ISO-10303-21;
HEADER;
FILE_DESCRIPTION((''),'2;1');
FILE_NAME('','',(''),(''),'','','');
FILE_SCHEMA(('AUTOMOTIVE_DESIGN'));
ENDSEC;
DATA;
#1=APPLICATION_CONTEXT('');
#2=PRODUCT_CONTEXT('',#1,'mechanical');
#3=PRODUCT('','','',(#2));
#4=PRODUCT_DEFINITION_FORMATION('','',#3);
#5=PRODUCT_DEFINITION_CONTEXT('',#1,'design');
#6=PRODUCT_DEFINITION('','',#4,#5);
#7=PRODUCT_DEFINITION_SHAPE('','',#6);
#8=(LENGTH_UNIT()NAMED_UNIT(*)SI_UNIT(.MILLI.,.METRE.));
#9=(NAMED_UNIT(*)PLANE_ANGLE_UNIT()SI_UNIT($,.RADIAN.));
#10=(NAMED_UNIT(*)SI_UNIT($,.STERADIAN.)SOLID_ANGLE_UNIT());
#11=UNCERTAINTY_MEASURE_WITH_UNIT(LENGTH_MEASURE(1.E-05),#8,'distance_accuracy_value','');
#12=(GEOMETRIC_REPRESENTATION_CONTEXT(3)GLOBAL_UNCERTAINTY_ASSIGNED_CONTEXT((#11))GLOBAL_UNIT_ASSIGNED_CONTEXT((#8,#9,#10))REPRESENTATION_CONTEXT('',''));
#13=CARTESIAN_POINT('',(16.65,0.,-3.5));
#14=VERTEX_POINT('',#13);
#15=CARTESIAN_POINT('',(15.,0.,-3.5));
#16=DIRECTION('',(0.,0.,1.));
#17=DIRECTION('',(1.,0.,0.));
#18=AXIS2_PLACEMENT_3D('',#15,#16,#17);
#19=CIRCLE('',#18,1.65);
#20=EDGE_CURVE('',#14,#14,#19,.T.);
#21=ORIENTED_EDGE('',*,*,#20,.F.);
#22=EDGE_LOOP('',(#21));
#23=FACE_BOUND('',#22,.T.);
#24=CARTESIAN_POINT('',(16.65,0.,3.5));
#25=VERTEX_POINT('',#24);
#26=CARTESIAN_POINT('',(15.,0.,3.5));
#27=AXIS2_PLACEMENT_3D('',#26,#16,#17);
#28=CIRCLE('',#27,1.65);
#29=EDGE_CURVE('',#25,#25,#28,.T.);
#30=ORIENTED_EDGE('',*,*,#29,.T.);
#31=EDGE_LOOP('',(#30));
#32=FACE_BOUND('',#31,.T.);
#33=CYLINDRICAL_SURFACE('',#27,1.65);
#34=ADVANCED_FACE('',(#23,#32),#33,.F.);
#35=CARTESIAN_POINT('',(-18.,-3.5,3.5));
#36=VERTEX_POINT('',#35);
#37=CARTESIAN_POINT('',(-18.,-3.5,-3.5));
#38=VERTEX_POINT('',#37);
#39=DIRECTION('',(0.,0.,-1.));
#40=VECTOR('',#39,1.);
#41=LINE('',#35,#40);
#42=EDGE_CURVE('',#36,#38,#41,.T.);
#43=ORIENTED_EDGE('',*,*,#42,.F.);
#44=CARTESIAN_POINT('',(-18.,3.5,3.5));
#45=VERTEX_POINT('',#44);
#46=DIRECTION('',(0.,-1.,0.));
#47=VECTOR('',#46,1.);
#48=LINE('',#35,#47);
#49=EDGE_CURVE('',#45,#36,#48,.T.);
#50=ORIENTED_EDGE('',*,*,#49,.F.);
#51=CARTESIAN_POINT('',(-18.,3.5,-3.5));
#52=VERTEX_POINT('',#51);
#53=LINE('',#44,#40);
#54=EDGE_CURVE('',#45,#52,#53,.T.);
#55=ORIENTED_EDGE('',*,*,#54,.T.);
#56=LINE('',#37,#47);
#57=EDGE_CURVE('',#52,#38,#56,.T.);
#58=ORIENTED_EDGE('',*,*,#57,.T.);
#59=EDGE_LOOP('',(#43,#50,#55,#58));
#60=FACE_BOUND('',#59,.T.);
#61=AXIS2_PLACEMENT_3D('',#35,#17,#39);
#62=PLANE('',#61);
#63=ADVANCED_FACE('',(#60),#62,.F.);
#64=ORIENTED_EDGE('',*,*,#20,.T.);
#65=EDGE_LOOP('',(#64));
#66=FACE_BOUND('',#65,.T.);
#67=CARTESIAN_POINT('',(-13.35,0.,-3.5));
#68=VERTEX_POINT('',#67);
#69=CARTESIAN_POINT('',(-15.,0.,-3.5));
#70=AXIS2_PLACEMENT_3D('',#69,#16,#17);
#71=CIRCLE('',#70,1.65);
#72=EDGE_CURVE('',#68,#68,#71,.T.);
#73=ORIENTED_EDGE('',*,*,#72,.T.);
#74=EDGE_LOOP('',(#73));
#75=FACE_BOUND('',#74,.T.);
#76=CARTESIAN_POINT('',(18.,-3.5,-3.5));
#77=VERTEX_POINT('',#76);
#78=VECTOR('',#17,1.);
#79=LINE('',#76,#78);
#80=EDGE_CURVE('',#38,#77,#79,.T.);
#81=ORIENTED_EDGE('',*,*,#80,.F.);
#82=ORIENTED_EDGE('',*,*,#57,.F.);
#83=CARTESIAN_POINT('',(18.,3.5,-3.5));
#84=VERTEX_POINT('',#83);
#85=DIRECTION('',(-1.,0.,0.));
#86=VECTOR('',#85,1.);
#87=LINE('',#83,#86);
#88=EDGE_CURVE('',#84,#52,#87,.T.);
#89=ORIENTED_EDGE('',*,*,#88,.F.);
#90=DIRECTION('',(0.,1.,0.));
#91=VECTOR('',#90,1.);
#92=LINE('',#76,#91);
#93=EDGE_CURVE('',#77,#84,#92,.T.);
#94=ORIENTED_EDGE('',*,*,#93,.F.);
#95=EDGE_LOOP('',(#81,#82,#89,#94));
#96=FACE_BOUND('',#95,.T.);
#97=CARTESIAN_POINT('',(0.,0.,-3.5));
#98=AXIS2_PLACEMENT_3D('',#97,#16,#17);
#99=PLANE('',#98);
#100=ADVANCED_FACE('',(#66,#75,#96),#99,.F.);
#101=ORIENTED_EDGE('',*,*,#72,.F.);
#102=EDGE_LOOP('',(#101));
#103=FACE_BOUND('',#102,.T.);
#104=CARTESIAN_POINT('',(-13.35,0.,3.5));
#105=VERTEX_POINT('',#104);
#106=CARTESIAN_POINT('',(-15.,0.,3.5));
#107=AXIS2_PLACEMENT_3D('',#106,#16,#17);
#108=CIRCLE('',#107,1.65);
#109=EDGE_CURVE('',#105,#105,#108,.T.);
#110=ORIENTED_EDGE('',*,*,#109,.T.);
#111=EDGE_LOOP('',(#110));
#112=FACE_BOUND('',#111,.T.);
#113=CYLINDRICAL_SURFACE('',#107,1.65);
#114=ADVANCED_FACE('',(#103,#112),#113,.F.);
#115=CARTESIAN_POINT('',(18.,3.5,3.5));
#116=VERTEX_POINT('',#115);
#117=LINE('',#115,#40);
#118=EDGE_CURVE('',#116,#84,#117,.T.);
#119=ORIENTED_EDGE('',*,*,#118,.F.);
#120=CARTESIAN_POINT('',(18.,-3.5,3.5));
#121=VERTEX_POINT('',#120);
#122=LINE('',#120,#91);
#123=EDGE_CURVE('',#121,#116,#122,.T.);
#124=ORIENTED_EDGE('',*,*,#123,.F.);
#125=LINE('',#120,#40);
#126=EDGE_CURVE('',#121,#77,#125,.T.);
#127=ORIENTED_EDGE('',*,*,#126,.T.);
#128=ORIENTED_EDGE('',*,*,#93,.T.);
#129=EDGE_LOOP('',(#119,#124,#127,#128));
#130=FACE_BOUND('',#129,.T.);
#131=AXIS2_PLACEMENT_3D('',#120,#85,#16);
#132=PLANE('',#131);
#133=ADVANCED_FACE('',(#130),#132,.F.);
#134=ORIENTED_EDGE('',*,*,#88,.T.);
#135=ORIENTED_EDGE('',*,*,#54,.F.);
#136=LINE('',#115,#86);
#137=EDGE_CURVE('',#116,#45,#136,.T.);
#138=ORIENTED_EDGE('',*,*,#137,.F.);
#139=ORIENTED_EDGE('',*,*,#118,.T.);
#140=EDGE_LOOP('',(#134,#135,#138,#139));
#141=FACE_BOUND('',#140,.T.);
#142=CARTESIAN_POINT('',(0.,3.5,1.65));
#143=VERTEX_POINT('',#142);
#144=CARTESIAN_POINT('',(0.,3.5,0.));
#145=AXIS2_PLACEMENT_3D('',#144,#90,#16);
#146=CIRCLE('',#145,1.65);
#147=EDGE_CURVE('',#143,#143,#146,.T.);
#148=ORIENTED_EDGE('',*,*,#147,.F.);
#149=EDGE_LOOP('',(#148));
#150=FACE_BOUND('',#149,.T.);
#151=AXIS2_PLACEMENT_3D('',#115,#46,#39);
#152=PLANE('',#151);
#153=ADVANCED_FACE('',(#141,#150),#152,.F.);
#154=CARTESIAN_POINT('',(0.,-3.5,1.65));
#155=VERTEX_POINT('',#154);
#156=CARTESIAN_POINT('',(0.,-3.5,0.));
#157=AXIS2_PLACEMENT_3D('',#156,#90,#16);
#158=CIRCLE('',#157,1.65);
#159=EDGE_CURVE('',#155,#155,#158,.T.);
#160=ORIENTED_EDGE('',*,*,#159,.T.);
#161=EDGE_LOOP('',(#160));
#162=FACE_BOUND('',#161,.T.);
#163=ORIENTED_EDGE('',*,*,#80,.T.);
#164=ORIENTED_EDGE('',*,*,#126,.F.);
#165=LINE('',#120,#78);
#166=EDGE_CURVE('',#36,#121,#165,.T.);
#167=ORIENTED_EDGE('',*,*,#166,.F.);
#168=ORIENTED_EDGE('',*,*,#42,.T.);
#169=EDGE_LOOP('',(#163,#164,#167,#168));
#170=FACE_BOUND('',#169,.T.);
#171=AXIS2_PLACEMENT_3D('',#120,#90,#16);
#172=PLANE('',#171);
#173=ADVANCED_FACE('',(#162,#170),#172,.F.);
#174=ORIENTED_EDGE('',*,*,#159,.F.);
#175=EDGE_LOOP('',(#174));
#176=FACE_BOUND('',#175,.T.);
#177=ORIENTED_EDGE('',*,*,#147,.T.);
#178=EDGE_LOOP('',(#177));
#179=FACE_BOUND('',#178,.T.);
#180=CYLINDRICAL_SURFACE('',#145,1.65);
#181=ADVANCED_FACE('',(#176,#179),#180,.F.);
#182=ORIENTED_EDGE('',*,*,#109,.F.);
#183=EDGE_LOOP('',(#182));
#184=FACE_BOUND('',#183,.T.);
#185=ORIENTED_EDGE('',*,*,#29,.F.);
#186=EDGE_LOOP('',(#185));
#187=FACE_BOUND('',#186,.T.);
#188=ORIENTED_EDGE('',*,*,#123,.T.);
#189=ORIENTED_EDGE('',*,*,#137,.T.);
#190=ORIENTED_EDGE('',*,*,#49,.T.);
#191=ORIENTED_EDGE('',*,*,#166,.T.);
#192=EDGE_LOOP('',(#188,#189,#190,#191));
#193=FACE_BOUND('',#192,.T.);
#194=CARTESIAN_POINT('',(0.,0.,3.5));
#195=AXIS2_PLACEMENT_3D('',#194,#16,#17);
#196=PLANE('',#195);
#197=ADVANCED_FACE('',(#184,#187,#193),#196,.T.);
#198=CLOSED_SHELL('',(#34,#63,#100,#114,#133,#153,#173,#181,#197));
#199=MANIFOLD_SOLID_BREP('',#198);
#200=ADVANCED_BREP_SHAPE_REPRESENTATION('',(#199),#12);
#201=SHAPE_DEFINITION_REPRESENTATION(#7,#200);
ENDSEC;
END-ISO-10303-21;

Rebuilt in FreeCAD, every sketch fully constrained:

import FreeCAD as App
import Part
import Sketcher
Q = App.Units.Quantity

doc = App.newDocument("Part")
body = doc.addObject("PartDesign::Body", "Body")

# Sketch on XY plane
sketch1 = body.newObject("Sketcher::SketchObject", "Sketch")
sketch1.AttachmentSupport = (doc.getObject("XY_Plane"), [""])
sketch1.MapMode = "FlatFace"
sketch1.addGeometry([
    Part.LineSegment(App.Vector(-18, 3.5, 0), App.Vector(-18, -3.5, 0)),  # 0
    Part.LineSegment(App.Vector(-18, -3.5, 0), App.Vector(18, -3.5, 0)),  # 1
    Part.LineSegment(App.Vector(18, -3.5, 0), App.Vector(18, 3.5, 0)),  # 2
    Part.LineSegment(App.Vector(18, 3.5, 0), App.Vector(-18, 3.5, 0)),  # 3
    Part.Circle(App.Vector(-15, 0, 0), App.Vector(0, 0, 1), 0.5),  # 4
    Part.Circle(App.Vector(15, 0, 0), App.Vector(0, 0, 1), 0.5),  # 5
], False)
sketch1.addConstraint([
    Sketcher.Constraint("Coincident", 0, 2, 1, 1),
    Sketcher.Constraint("Coincident", 1, 2, 2, 1),
    Sketcher.Constraint("Coincident", 2, 2, 3, 1),
    Sketcher.Constraint("Coincident", 3, 2, 0, 1),
    Sketcher.Constraint("Vertical", 0),
    Sketcher.Constraint("Horizontal", 1),
    Sketcher.Constraint("Vertical", 2),
    Sketcher.Constraint("Horizontal", 3),
    Sketcher.Constraint("Equal", 4, 5),
    Sketcher.Constraint("Symmetric", 4, 3, 5, 3, -1, 1),
    Sketcher.Constraint("Symmetric", 0, 2, 2, 2, -1, 1),
    Sketcher.Constraint("PointOnObject", 4, 3, -1),
    Sketcher.Constraint("Diameter", 4, Q("1 mm")),
    Sketcher.Constraint("DistanceX", 1, 1, 1, 2, Q("36 mm")),
    Sketcher.Constraint("DistanceY", 0, 2, 0, 1, Q("7 mm")),
    Sketcher.Constraint("DistanceX", 4, 3, -1, 1, Q("15 mm")),
])
pad1 = body.newObject("PartDesign::Pad", "Pad")
pad1.Profile = sketch1
pad1.Length = 7
pad1.Midplane = True

# Sketch on XY plane
sketch2 = body.newObject("Sketcher::SketchObject", "Sketch001")
sketch2.AttachmentSupport = (doc.getObject("XY_Plane"), [""])
sketch2.MapMode = "FlatFace"
sketch2.AttachmentOffset = App.Placement(App.Vector(0, 0, 3.5), App.Rotation())
sketch2.addGeometry([
    Part.Circle(App.Vector(-15, 0, 0), App.Vector(0, 0, 1), 1.6),
    Part.Circle(App.Vector(15, 0, 0), App.Vector(0, 0, 1), 1.6),
], False)
sketch2.addConstraint([
    Sketcher.Constraint("Equal", 0, 1),
    Sketcher.Constraint("Symmetric", 0, 3, 1, 3, -1, 1),
    Sketcher.Constraint("PointOnObject", 0, 3, -1),
    Sketcher.Constraint("Diameter", 0, Q("3.3 mm")),
    Sketcher.Constraint("DistanceX", 0, 3, -1, 1, Q("15 mm")),
])
doc.recompute()
hole = body.newObject("PartDesign::Hole", "Hole")
hole.Profile = sketch2
hole.ThreadType = "None"
hole.Diameter = 3.3
hole.DepthType = "Dimension"
hole.Depth = 22.1
hole.DrillPoint = "Angled"
hole.DrillPointAngle = 118

# Sketch on XZ plane
sketch3 = body.newObject("Sketcher::SketchObject", "Sketch002")
sketch3.AttachmentSupport = (doc.getObject("XZ_Plane"), [""])
sketch3.MapMode = "FlatFace"
sketch3.AttachmentOffset = App.Placement(App.Vector(0, 0, -3.5), App.Rotation())
sketch3.addGeometry(Part.Circle(App.Vector(0, 0, 0), App.Vector(0, 0, 1), 1.6), False)
sketch3.addConstraint([
    Sketcher.Constraint("Coincident", 0, 3, -1, 1),
    Sketcher.Constraint("Diameter", 0, Q("3.3 mm")),
])
doc.recompute()
hole2 = body.newObject("PartDesign::Hole", "Hole001")
hole2.Profile = sketch3
hole2.ThreadType = "None"
hole2.Diameter = 3.3
hole2.DepthType = "Dimension"
hole2.Depth = 22.1
hole2.DrillPoint = "Angled"
hole2.DrillPointAngle = 118
hole2.Reversed = True

doc.recompute()
